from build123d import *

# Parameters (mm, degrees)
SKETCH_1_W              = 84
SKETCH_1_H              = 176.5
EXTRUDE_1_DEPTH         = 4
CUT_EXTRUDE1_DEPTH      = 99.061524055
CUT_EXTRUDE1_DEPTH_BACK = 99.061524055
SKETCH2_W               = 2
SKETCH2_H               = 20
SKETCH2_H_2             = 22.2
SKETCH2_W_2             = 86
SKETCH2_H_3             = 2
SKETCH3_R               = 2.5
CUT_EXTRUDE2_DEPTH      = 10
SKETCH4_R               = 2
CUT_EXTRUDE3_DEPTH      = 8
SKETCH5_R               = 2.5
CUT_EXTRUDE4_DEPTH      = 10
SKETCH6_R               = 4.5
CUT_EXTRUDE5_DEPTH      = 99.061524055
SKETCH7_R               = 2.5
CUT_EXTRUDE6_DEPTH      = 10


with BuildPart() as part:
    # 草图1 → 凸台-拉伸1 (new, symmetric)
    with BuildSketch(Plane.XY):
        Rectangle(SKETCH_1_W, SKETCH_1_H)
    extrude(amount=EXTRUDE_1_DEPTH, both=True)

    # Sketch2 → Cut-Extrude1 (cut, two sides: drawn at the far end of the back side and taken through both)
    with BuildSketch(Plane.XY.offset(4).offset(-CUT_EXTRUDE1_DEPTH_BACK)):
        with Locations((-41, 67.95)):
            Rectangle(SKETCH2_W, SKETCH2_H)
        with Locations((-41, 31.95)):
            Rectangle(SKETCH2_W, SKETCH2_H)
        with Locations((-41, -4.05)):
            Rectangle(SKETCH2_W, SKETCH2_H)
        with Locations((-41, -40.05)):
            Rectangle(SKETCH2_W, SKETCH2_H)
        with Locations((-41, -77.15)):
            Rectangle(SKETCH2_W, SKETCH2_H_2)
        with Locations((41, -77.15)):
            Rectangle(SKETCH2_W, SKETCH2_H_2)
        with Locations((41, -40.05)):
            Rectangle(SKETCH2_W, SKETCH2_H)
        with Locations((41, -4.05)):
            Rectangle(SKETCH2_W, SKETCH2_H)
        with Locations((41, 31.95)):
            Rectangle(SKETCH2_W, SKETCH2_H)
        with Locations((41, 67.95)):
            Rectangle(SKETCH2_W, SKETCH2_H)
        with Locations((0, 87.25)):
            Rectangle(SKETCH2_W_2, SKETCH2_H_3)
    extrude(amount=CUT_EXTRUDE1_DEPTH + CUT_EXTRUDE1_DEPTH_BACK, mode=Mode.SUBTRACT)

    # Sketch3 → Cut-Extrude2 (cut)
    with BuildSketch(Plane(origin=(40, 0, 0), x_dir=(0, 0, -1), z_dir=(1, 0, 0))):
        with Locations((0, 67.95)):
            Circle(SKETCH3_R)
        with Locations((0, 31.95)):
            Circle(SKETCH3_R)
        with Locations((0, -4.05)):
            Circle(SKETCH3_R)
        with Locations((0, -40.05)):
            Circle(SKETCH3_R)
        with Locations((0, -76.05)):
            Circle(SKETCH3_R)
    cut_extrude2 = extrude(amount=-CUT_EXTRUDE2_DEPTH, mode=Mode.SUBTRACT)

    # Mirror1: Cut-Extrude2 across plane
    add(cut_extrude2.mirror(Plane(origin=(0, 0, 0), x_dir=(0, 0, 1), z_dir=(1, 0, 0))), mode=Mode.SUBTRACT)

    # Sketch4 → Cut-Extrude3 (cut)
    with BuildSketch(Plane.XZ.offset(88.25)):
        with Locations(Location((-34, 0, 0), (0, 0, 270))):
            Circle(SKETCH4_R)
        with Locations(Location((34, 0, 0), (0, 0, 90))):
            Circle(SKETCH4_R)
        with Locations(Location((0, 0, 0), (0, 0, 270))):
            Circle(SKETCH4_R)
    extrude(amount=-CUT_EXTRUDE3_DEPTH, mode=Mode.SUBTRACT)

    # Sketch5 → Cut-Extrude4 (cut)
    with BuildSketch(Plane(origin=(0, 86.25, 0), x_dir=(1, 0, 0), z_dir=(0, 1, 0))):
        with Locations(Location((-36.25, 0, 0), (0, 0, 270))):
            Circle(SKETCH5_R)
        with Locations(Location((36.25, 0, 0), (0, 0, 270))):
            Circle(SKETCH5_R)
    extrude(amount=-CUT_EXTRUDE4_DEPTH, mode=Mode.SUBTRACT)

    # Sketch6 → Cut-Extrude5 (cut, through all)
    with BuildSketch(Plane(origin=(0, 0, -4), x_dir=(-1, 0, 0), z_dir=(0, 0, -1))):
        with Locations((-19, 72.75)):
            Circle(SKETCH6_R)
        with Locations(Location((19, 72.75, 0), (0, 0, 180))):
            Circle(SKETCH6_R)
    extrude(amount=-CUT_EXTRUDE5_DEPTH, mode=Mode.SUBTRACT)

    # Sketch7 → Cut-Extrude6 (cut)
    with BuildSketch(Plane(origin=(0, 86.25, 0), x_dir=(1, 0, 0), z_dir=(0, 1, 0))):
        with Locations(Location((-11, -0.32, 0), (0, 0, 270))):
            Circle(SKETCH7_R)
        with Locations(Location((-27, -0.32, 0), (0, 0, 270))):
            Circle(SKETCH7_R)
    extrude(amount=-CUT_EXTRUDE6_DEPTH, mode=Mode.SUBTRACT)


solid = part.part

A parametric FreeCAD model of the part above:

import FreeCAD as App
import Part
import Sketcher
from FreeCAD import Vector


def add_polygon(sketch, points):
    """Adds a closed chain of lines whose ends are joined by coincident constraints."""
    first, n = sketch.GeometryCount, len(points)
    for a, b in zip(points, points[1:] + points[:1]):
        sketch.addGeometry(Part.LineSegment(App.Vector(*a, 0), App.Vector(*b, 0)), False)
    for i in range(n):
        sketch.addConstraint(Sketcher.Constraint("Coincident", first + i, 2, first + (i + 1) % n, 1))

doc = App.newDocument("Part")
body = doc.addObject("PartDesign::Body", "Body")

# Sketch on XY plane
sketch1 = doc.addObject("Sketcher::SketchObject", "Sketch")
body.addObject(sketch1)
sketch1.AttachmentSupport = (doc.XY_Plane, [""])
sketch1.MapMode = "FlatFace"
add_polygon(sketch1, [(-42, 88), (-42, -88), (42, -88), (42, 88)])  # lines 0-3
sketch1.addConstraint([
    Sketcher.Constraint("Vertical", 0),
    Sketcher.Constraint("Horizontal", 1),
    Sketcher.Constraint("Vertical", 2),
    Sketcher.Constraint("Horizontal", 3),
    Sketcher.Constraint("Symmetric", 0, 2, 2, 2, -1, 1),
    Sketcher.Constraint("DistanceX", 1, 1, 1, 2, 84.0),
    Sketcher.Constraint("DistanceY", 0, 2, 0, 1, 176.5),
])
pad1 = doc.addObject("PartDesign::Pad", "Pad")
body.addObject(pad1)
pad1.Profile = sketch1
pad1.Length = 8
pad1.Midplane = True

# Sketch on XY plane
sketch2 = doc.addObject("Sketcher::SketchObject", "Sketch001")
body.addObject(sketch2)
sketch2.AttachmentSupport = (doc.XY_Plane, [""])
sketch2.MapMode = "FlatFace"
sketch2.AttachmentOffset = App.Placement(Vector(0, 0, 4), App.Rotation())
add_polygon(sketch2, [(-42, 78), (-42, 58), (-40, 58), (-40, 78)])  # lines 0-3
add_polygon(sketch2, [(-42, 42), (-42, 21.9), (-40, 21.9), (-40, 42)])  # lines 4-7
add_polygon(sketch2, [(-42, 6), (-42, -14.1), (-40, -14.1), (-40, 6)])  # lines 8-11
add_polygon(sketch2, [(-42, -30.1), (-42, -50), (-40, -50), (-40, -30.1)])  # lines 12-15
add_polygon(sketch2, [(-42, -66), (-42, -88.2), (-40, -88.2), (-40, -66)])  # lines 16-19
add_polygon(sketch2, [(40, -66), (40, -88.2), (42, -88.2), (42, -66)])  # lines 20-23
add_polygon(sketch2, [(40, -30.1), (40, -50), (42, -50), (42, -30.1)])  # lines 24-27
add_polygon(sketch2, [(40, 6), (40, -14.1), (42, -14.1), (42, 6)])  # lines 28-31
add_polygon(sketch2, [(40, 42), (40, 21.9), (42, 21.9), (42, 42)])  # lines 32-35
add_polygon(sketch2, [(40, 78), (40, 58), (42, 58), (42, 78)])  # lines 36-39
add_polygon(sketch2, [(-43, 88.2), (-43, 86.2), (43, 86.2), (43, 88.2)])  # lines 40-43
sketch2.addConstraint([
    Sketcher.Constraint("Vertical", 0),
    Sketcher.Constraint("Horizontal", 1),
    Sketcher.Constraint("Vertical", 2),
    Sketcher.Constraint("Horizontal", 3),
    Sketcher.Constraint("Vertical", 4),
    Sketcher.Constraint("Horizontal", 5),
    Sketcher.Constraint("Vertical", 6),
    Sketcher.Constraint("Horizontal", 7),
    Sketcher.Constraint("Vertical", 8),
    Sketcher.Constraint("Horizontal", 9),
    Sketcher.Constraint("Vertical", 10),
    Sketcher.Constraint("Horizontal", 11),
    Sketcher.Constraint("Vertical", 12),
    Sketcher.Constraint("Horizontal", 13),
    Sketcher.Constraint("Vertical", 14),
    Sketcher.Constraint("Horizontal", 15),
    Sketcher.Constraint("Vertical", 16),
    Sketcher.Constraint("Horizontal", 17),
    Sketcher.Constraint("Vertical", 18),
    Sketcher.Constraint("Horizontal", 19),
    Sketcher.Constraint("Vertical", 20),
    Sketcher.Constraint("Horizontal", 21),
    Sketcher.Constraint("Vertical", 22),
    Sketcher.Constraint("Horizontal", 23),
    Sketcher.Constraint("Vertical", 24),
    Sketcher.Constraint("Horizontal", 25),
    Sketcher.Constraint("Vertical", 26),
    Sketcher.Constraint("Horizontal", 27),
    Sketcher.Constraint("Vertical", 28),
    Sketcher.Constraint("Horizontal", 29),
    Sketcher.Constraint("Vertical", 30),
    Sketcher.Constraint("Horizontal", 31),
    Sketcher.Constraint("Vertical", 32),
    Sketcher.Constraint("Horizontal", 33),
    Sketcher.Constraint("Vertical", 34),
    Sketcher.Constraint("Horizontal", 35),
    Sketcher.Constraint("Vertical", 36),
    Sketcher.Constraint("Horizontal", 37),
    Sketcher.Constraint("Vertical", 38),
    Sketcher.Constraint("Horizontal", 39),
    Sketcher.Constraint("Vertical", 40),
    Sketcher.Constraint("Horizontal", 41),
    Sketcher.Constraint("Vertical", 42),
    Sketcher.Constraint("Horizontal", 43),
    Sketcher.Constraint("Symmetric", 17, 2, 20, 2, -2),
    Sketcher.Constraint("Symmetric", 19, 2, 22, 2, -2),
    Sketcher.Constraint("Symmetric", 13, 2, 24, 2, -2),
    Sketcher.Constraint("Symmetric", 15, 2, 26, 2, -2),
    Sketcher.Constraint("Symmetric", 9, 2, 28, 2, -2),
    Sketcher.Constraint("Symmetric", 11, 2, 30, 2, -2),
    Sketcher.Constraint("Symmetric", 5, 2, 32, 2, -2),
    Sketcher.Constraint("Symmetric", 7, 2, 34, 2, -2),
    Sketcher.Constraint("Symmetric", 1, 2, 36, 2, -2),
    Sketcher.Constraint("Symmetric", 3, 2, 38, 2, -2),
    Sketcher.Constraint("Vertical", 3, 2, 4, 2),
    Sketcher.Constraint("Vertical", 2, 2, 5, 2),
    Sketcher.Constraint("Vertical", 7, 2, 8, 2),
    Sketcher.Constraint("Vertical", 6, 2, 9, 2),
    Sketcher.Constraint("Vertical", 11, 2, 12, 2),
    Sketcher.Constraint("Vertical", 10, 2, 13, 2),
    Sketcher.Constraint("Vertical", 15, 2, 16, 2),
    Sketcher.Constraint("Vertical", 14, 2, 17, 2),
    Sketcher.Constraint("Equal", 2, 4),
    Sketcher.Constraint("Equal", 6, 8),
    Sketcher.Constraint("Equal", 10, 12),
    Sketcher.Constraint("Equal", 39, 40),
    Sketcher.Constraint("DistanceX", 1, 1, 1, 2, 2.0),
    Sketcher.Constraint("DistanceX", 41, 1, 41, 2, 86.0),
    Sketcher.Constraint("DistanceY", 0, 2, 0, 1, 20.0),
    Sketcher.Constraint("DistanceY", 16, 2, 16, 1, 22.2),
    Sketcher.Constraint("DistanceX", 0, 2, -1, 1, 42.0),
    Sketcher.Constraint("DistanceX", 40, 2, -1, 1, 43.0),
    Sketcher.Constraint("DistanceY", 4, 2, 0, 2, 36.0),
    Sketcher.Constraint("DistanceY", 8, 2, 4, 2, 36.0),
    Sketcher.Constraint("DistanceY", 12, 2, 8, 2, 36.0),
    Sketcher.Constraint("DistanceY", 18, 2, 13, 2, 16.0),
    Sketcher.Constraint("DistanceY", 3, 2, 40, 2, 8.3),
    Sketcher.Constraint("DistanceY", -1, 1, 0, 2, 57.95),
])
pocket1 = doc.addObject("PartDesign::Pocket", "Pocket")
body.addObject(pocket1)
pocket1.Profile = sketch2
pocket1.Type = "ThroughAll"
pocket1.Midplane = True

# Sketch on YZ plane
sketch3 = doc.addObject("Sketcher::SketchObject", "Sketch002")
body.addObject(sketch3)
sketch3.AttachmentSupport = (doc.YZ_Plane, [""])
sketch3.MapMode = "FlatFace"
sketch3.AttachmentOffset = App.Placement(Vector(0, 0, 40), App.Rotation())
sketch3.addGeometry([
    Part.Circle(Vector(68, 0, 0), Vector(0, 0, 1), 2.5),  # 0
    Part.Circle(Vector(31.9, 0, 0), Vector(0, 0, 1), 2.5),  # 1
    Part.Circle(Vector(-4, 0, 0), Vector(0, 0, 1), 2.5),  # 2
    Part.Circle(Vector(-40, 0, 0), Vector(0, 0, 1), 2.5),  # 3
    Part.Circle(Vector(-76, 0, 0), Vector(0, 0, 1), 2.5),  # 4
], False)
sketch3.addConstraint([
    Sketcher.Constraint("Equal", 0, 1),
    Sketcher.Constraint("Equal", 1, 2),
    Sketcher.Constraint("Equal", 2, 3),
    Sketcher.Constraint("Equal", 3, 4),
    Sketcher.Constraint("PointOnObject", 0, 3, -1),
    Sketcher.Constraint("PointOnObject", 1, 3, -1),
    Sketcher.Constraint("PointOnObject", 2, 3, -1),
    Sketcher.Constraint("PointOnObject", 3, 3, -1),
    Sketcher.Constraint("PointOnObject", 4, 3, -1),
    Sketcher.Constraint("Diameter", 0, 5.0),
    Sketcher.Constraint("DistanceX", 1, 3, 0, 3, 36.0),
    Sketcher.Constraint("DistanceX", 2, 3, 1, 3, 36.0),
    Sketcher.Constraint("DistanceX", 3, 3, 2, 3, 36.0),
    Sketcher.Constraint("DistanceX", 4, 3, 3, 3, 36.0),
    Sketcher.Constraint("DistanceX", -1, 1, 0, 3, 67.95),
])
pocket2 = doc.addObject("PartDesign::Pocket", "Pocket001")
body.addObject(pocket2)
pocket2.Profile = sketch3
pocket2.Length = 10
doc.recompute()

mirrored = doc.addObject("PartDesign::Mirrored", "Mirrored")
body.addObject(mirrored)
mirrored.Originals = [pocket2]
mirrored.MirrorPlane = (doc.YZ_Plane, [""])
body.Tip = mirrored

# Sketch on XZ plane
sketch4 = doc.addObject("Sketcher::SketchObject", "Sketch003")
body.addObject(sketch4)
sketch4.AttachmentSupport = (doc.XZ_Plane, [""])
sketch4.MapMode = "FlatFace"
sketch4.AttachmentOffset = App.Placement(Vector(0, 0, 88.25), App.Rotation())
sketch4.addGeometry([
    Part.Circle(Vector(-34, 0, 0), Vector(0, 0, 1), 2),
    Part.Circle(Vector(34, 0, 0), Vector(0, 0, 1), 2),
    Part.Circle(Vector(0, 0, 0), Vector(0, 0, 1), 2),
], False)
sketch4.addConstraint([
    Sketcher.Constraint("Coincident", 2, 3, -1, 1),
    Sketcher.Constraint("Equal", 0, 1),
    Sketcher.Constraint("Equal", 1, 2),
    Sketcher.Constraint("Symmetric", 0, 3, 1, 3, -1, 1),
    Sketcher.Constraint("PointOnObject", 0, 3, -1),
    Sketcher.Constraint("Diameter", 0, 4.0),
    Sketcher.Constraint("DistanceX", 0, 3, -1, 1, 34.0),
])
pocket3 = doc.addObject("PartDesign::Pocket", "Pocket002")
body.addObject(pocket3)
pocket3.Profile = sketch4
pocket3.Length = 8

# Sketch on XZ plane
sketch5 = doc.addObject("Sketcher::SketchObject", "Sketch004")
body.addObject(sketch5)
sketch5.AttachmentSupport = (doc.XZ_Plane, [""])
sketch5.MapMode = "FlatFace"
sketch5.AttachmentOffset = App.Placement(Vector(0, 0, -86.25), App.Rotation())
sketch5.addGeometry([
    Part.Circle(Vector(-36.2, 0, 0), Vector(0, 0, 1), 2.5),
    Part.Circle(Vector(36.2, 0, 0), Vector(0, 0, 1), 2.5),
], False)
sketch5.addConstraint([
    Sketcher.Constraint("Equal", 0, 1),
    Sketcher.Constraint("Symmetric", 0, 3, 1, 3, -1, 1),
    Sketcher.Constraint("PointOnObject", 0, 3, -1),
    Sketcher.Constraint("Diameter", 0, 5.0),
    Sketcher.Constraint("DistanceX", 0, 3, 1, 3, 72.5),
])
pocket4 = doc.addObject("PartDesign::Pocket", "Pocket003")
body.addObject(pocket4)
pocket4.Profile = sketch5
pocket4.Length = 10
pocket4.Reversed = True

# Sketch on XY plane
sketch6 = doc.addObject("Sketcher::SketchObject", "Sketch005")
body.addObject(sketch6)
sketch6.AttachmentSupport = (doc.XY_Plane, [""])
sketch6.MapMode = "FlatFace"
sketch6.AttachmentOffset = App.Placement(Vector(0, 0, -4), App.Rotation())
sketch6.addGeometry([
    Part.Circle(Vector(19, 72.8, 0), Vector(0, 0, 1), 4.5),
    Part.Circle(Vector(-19, 72.8, 0), Vector(0, 0, 1), 4.5),
], False)
sketch6.addConstraint([
    Sketcher.Constraint("Equal", 0, 1),
    Sketcher.Constraint("Symmetric", 0, 3, 1, 3, -2),
    Sketcher.Constraint("Diameter", 0, 9.0),
    Sketcher.Constraint("DistanceX", -1, 1, 0, 3, 19.0),
    Sketcher.Constraint("DistanceY", -1, 1, 0, 3, 72.75),
])
pocket5 = doc.addObject("PartDesign::Pocket", "Pocket004")
body.addObject(pocket5)
pocket5.Profile = sketch6
pocket5.Type = "ThroughAll"
pocket5.Reversed = True

# Sketch on XZ plane
sketch7 = doc.addObject("Sketcher::SketchObject", "Sketch006")
body.addObject(sketch7)
sketch7.AttachmentSupport = (doc.XZ_Plane, [""])
sketch7.MapMode = "FlatFace"
sketch7.AttachmentOffset = App.Placement(Vector(0, 0, -86.25), App.Rotation())
sketch7.addGeometry([
    Part.Circle(Vector(-11, 0.3, 0), Vector(0, 0, 1), 2.5),
    Part.Circle(Vector(-27, 0.3, 0), Vector(0, 0, 1), 2.5),
], False)
sketch7.addConstraint([
    Sketcher.Constraint("Equal", 0, 1),
    Sketcher.Constraint("Horizontal", 0, 3, 1, 3),
    Sketcher.Constraint("Diameter", 0, 5.0),
    Sketcher.Constraint("DistanceX", 0, 3, -1, 1, 11.0),
    Sketcher.Constraint("DistanceX", 1, 3, -1, 1, 27.0),
    Sketcher.Constraint("DistanceY", -1, 1, 0, 3, 0.32),
])
pocket6 = doc.addObject("PartDesign::Pocket", "Pocket005")
body.addObject(pocket6)
pocket6.Profile = sketch7
pocket6.Length = 10
pocket6.Reversed = True

doc.recompute()
